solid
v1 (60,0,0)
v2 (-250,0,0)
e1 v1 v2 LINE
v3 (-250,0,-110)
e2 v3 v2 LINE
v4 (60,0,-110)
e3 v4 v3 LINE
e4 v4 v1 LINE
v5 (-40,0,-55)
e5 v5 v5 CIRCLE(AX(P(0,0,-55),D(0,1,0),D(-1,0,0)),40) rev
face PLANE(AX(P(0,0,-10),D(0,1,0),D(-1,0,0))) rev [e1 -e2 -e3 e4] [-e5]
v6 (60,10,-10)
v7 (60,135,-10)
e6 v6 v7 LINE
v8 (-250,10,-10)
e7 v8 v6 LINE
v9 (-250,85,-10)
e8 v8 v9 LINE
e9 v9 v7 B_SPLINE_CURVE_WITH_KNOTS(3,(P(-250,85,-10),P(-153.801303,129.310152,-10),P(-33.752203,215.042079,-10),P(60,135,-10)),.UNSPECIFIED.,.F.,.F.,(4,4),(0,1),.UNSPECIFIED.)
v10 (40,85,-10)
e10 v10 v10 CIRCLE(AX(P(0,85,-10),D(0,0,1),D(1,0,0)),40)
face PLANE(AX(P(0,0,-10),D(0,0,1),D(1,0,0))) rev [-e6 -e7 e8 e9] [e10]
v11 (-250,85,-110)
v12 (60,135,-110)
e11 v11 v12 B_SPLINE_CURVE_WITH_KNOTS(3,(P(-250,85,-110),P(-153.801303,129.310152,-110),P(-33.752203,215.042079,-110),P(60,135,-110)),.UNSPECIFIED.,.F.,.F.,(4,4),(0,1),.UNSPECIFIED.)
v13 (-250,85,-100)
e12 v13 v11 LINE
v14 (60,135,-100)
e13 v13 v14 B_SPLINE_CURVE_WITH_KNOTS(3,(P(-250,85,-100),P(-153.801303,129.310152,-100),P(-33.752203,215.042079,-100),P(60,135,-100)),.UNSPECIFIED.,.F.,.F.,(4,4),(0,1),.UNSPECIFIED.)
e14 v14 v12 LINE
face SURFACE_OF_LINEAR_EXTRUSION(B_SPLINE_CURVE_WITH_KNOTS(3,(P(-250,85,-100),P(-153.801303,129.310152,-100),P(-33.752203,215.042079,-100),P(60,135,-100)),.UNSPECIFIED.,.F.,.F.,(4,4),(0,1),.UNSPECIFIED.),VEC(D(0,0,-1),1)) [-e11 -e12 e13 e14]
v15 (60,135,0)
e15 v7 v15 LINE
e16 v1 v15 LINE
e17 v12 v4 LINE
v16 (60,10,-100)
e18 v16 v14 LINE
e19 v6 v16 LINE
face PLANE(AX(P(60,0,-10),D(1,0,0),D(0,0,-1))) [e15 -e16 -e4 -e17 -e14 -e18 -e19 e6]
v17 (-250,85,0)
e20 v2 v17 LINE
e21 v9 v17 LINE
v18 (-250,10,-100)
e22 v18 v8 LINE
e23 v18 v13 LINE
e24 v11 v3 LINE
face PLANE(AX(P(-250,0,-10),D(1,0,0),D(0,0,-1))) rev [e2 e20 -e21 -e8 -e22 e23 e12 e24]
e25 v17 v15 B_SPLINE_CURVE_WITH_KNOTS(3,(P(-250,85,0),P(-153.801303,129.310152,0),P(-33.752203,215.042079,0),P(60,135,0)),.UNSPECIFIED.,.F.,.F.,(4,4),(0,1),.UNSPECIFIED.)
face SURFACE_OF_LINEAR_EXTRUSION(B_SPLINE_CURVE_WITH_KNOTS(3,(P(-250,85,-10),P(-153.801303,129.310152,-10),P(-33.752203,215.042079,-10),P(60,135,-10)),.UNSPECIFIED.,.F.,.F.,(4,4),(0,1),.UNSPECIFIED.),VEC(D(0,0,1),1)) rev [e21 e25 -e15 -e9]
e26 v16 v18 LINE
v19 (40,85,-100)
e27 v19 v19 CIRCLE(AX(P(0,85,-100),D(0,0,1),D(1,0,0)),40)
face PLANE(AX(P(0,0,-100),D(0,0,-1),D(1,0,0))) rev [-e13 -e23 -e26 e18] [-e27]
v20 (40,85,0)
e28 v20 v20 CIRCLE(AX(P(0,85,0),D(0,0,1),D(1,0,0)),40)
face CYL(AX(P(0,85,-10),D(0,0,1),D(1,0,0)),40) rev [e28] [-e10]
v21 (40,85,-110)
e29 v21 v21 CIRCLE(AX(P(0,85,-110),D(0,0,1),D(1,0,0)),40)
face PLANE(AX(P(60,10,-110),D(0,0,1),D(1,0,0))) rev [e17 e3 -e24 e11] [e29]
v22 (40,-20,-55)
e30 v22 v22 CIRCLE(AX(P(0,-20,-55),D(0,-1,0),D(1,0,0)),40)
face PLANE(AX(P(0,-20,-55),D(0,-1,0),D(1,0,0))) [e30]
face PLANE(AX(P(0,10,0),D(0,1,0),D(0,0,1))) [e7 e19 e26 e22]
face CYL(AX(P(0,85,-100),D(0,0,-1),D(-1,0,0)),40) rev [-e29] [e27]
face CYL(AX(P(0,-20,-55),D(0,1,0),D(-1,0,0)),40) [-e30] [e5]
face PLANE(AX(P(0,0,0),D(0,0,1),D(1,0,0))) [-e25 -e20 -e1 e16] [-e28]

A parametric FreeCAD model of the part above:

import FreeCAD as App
import Part
import Sketcher

doc = App.newDocument("Part")
body = doc.addObject("PartDesign::Body", "Body")

# Sketch on XY plane
sketch1 = doc.addObject("Sketcher::SketchObject", "Sketch")
body.addObject(sketch1)
sketch1.AttachmentSupport = (doc.XY_Plane, [""])
sketch1.MapMode = "FlatFace"
sketch1.addGeometry([
    Part.LineSegment(App.Vector(-250, 85, 0), App.Vector(-250, 0, 0)),  # 0
    Part.LineSegment(App.Vector(-250, 0, 0), App.Vector(60, 0, 0)),  # 1
    Part.LineSegment(App.Vector(60, 0, 0), App.Vector(60, 135, 0)),  # 2
    Part.BSplineCurve([App.Vector(0, 165, 0), App.Vector(20.805564, 160.687871, 0), App.Vector(40.945893, 151.267675, 0), App.Vector(60, 135, 0)], [4, 4], [0.796760971, 1], False, 3, [1, 1, 1, 1], False),  # 3
    Part.BSplineCurve([App.Vector(-250, 85, 0), App.Vector(-173.352633, 120.304599, 0), App.Vector(-81.564361, 181.904904, 0), App.Vector(0, 165, 0)], [4, 4], [0, 0.796760971], False, 3, [1, 1, 1, 1], False),  # 4
], False)
sketch1.addConstraint([
    Sketcher.Constraint("Block", 3),
    Sketcher.Constraint("Block", 4),
    Sketcher.Constraint("Coincident", 0, 2, 1, 1),
    Sketcher.Constraint("Coincident", 1, 2, 2, 1),
    Sketcher.Constraint("Coincident", 2, 2, 3, 2),
    Sketcher.Constraint("Coincident", 4, 1, 0, 1),
    Sketcher.Constraint("Vertical", 0),
    Sketcher.Constraint("Horizontal", 1),
    Sketcher.Constraint("Vertical", 2),
    Sketcher.Constraint("PointOnObject", 0, 2, -1),
])
pad1 = doc.addObject("PartDesign::Pad", "Pad")
body.addObject(pad1)
pad1.Profile = sketch1
pad1.Length = 10
pad1.Reversed = True

# Sketch on XZ plane
sketch2 = doc.addObject("Sketcher::SketchObject", "Sketch001")
body.addObject(sketch2)
sketch2.AttachmentSupport = (doc.XZ_Plane, [""])
sketch2.MapMode = "FlatFace"
sketch2.addGeometry([
    Part.LineSegment(App.Vector(-250, -110, 0), App.Vector(-250, -10, 0)),
    Part.LineSegment(App.Vector(-250, -10, 0), App.Vector(60, -10, 0)),
    Part.LineSegment(App.Vector(60, -10, 0), App.Vector(60, -110, 0)),
    Part.LineSegment(App.Vector(60, -110, 0), App.Vector(-250, -110, 0)),
], False)
sketch2.addConstraint([
    Sketcher.Constraint("Coincident", 0, 2, 1, 1),
    Sketcher.Constraint("Coincident", 1, 2, 2, 1),
    Sketcher.Constraint("Coincident", 2, 2, 3, 1),
    Sketcher.Constraint("Coincident", 3, 2, 0, 1),
    Sketcher.Constraint("Vertical", 0),
    Sketcher.Constraint("Horizontal", 1),
    Sketcher.Constraint("Vertical", 2),
    Sketcher.Constraint("Horizontal", 3),
    Sketcher.Constraint("DistanceX", 1, 1, 1, 2, 310.0),
    Sketcher.Constraint("DistanceY", 0, 1, 0, 2, 100.0),
    Sketcher.Constraint("DistanceX", 0, 2, -1, 1, 250.0),
    Sketcher.Constraint("DistanceY", 0, 2, -1, 1, 10.0),
])
pad2 = doc.addObject("PartDesign::Pad", "Pad001")
body.addObject(pad2)
pad2.Profile = sketch2
pad2.Length = 10
pad2.Reversed = True

# Sketch on XY plane
sketch3 = doc.addObject("Sketcher::SketchObject", "Sketch002")
body.addObject(sketch3)
sketch3.AttachmentSupport = (doc.XY_Plane, [""])
sketch3.MapMode = "FlatFace"
sketch3.addGeometry(Part.Circle(App.Vector(0, 85, 0), App.Vector(0, 0, 1), 40), False)
sketch3.addConstraint([
    Sketcher.Constraint("PointOnObject", 0, 3, -2),
    Sketcher.Constraint("Diameter", 0, 80.0),
    Sketcher.Constraint("DistanceY", -1, 1, 0, 3, 85.0),
])
pocket1 = doc.addObject("PartDesign::Pocket", "Pocket")
body.addObject(pocket1)
pocket1.Profile = sketch3
pocket1.Length = 10
doc.recompute()

datumplane = doc.addObject("PartDesign::Plane", "DatumPlane")
body.addObject(datumplane)
datumplane.AttachmentSupport = (doc.XY_Plane, [""])
datumplane.MapMode = "FlatFace"
datumplane.AttachmentOffset = App.Placement(App.Vector(0, 0, -55), App.Rotation())
mirrored = doc.addObject("PartDesign::Mirrored", "Mirrored")
body.addObject(mirrored)
mirrored.Originals = [pad1, pocket1]
mirrored.MirrorPlane = (datumplane, [""])
body.Tip = mirrored

# Sketch on XZ plane
sketch4 = doc.addObject("Sketcher::SketchObject", "Sketch003")
body.addObject(sketch4)
sketch4.AttachmentSupport = (doc.XZ_Plane, [""])
sketch4.MapMode = "FlatFace"
sketch4.addGeometry(Part.Circle(App.Vector(0, -55, 0), App.Vector(0, 0, 1), 40), False)
sketch4.addConstraint([
    Sketcher.Constraint("PointOnObject", 0, 3, -2),
    Sketcher.Constraint("Diameter", 0, 80.0),
    Sketcher.Constraint("DistanceY", 0, 3, -1, 1, 55.0),
])
pad3 = doc.addObject("PartDesign::Pad", "Pad002")
body.addObject(pad3)
pad3.Profile = sketch4
pad3.Length = 20

doc.recompute()
